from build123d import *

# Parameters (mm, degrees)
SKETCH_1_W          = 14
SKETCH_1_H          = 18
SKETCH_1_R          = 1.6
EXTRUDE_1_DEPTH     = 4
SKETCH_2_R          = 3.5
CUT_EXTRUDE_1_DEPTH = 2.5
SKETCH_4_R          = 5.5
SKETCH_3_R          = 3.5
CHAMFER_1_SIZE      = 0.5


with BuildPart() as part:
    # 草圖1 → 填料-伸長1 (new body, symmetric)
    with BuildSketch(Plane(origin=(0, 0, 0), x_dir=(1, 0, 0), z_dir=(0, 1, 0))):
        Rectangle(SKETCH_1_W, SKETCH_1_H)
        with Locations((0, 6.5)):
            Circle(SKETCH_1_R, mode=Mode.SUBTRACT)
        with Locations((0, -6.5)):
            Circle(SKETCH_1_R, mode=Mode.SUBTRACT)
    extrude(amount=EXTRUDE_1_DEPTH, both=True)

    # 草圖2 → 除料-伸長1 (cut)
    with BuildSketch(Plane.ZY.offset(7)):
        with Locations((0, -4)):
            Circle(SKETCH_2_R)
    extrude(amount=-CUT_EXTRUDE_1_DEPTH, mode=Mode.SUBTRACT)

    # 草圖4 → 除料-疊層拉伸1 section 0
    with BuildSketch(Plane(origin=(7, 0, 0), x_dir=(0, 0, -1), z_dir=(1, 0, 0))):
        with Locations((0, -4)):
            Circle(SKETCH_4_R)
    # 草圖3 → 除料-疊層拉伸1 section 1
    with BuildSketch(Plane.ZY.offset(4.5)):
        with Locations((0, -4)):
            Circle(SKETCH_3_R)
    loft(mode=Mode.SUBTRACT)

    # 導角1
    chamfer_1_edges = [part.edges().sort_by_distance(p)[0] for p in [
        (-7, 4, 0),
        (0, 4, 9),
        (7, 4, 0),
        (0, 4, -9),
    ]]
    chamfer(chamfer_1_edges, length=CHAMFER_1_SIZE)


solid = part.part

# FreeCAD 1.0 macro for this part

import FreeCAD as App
import Part
import Sketcher

V = App.Vector
Q = App.Units.Quantity


def edges_at(feature, points):
    """Names of the edges that pass closest to the given points."""
    edges = feature.Shape.Edges
    near = lambda p: min(range(len(edges)), key=lambda i: edges[i].distToShape(Part.Vertex(*p))[0])
    return sorted({f"Edge{near(p) + 1}" for p in points})

doc = App.newDocument("Part")
body = doc.addObject("PartDesign::Body", "Body")

# Sketch on XZ plane
sketch1 = body.newObject("Sketcher::SketchObject", "Sketch")
sketch1.AttachmentSupport = (doc.getObject("XZ_Plane"), [""])
sketch1.MapMode = "FlatFace"
sketch1.addGeometry([
    Part.LineSegment(V(-7, -9, 0), V(-7, 9, 0)),  # 0
    Part.LineSegment(V(-7, 9, 0), V(7, 9, 0)),  # 1
    Part.LineSegment(V(7, 9, 0), V(7, -9, 0)),  # 2
    Part.LineSegment(V(7, -9, 0), V(-7, -9, 0)),  # 3
    Part.Circle(V(0, 6.5, 0), V(0, 0, 1), 1.6),  # 4
    Part.Circle(V(0, -6.5, 0), V(0, 0, 1), 1.6),  # 5
], False)
sketch1.addConstraint([
    Sketcher.Constraint("Coincident", 0, 2, 1, 1),
    Sketcher.Constraint("Coincident", 1, 2, 2, 1),
    Sketcher.Constraint("Coincident", 2, 2, 3, 1),
    Sketcher.Constraint("Coincident", 3, 2, 0, 1),
    Sketcher.Constraint("Vertical", 0),
    Sketcher.Constraint("Horizontal", 1),
    Sketcher.Constraint("Vertical", 2),
    Sketcher.Constraint("Horizontal", 3),
    Sketcher.Constraint("Equal", 4, 5),
    Sketcher.Constraint("Symmetric", 4, 3, 5, 3, -1, 1),
    Sketcher.Constraint("Symmetric", 0, 2, 2, 2, -1, 1),
    Sketcher.Constraint("PointOnObject", 4, 3, -2),
    Sketcher.Constraint("Diameter", 4, Q("3.2 mm")),
    Sketcher.Constraint("DistanceX", 1, 1, 1, 2, Q("14 mm")),
    Sketcher.Constraint("DistanceY", 0, 1, 0, 2, Q("18 mm")),
    Sketcher.Constraint("DistanceY", 5, 3, 4, 3, Q("13 mm")),
])
pad1 = body.newObject("PartDesign::Pad", "Pad")
pad1.Profile = sketch1
pad1.Length = 8
pad1.Midplane = True

# Sketch on YZ plane
sketch2 = body.newObject("Sketcher::SketchObject", "Sketch001")
sketch2.AttachmentSupport = (doc.getObject("YZ_Plane"), [""])
sketch2.MapMode = "FlatFace"
sketch2.AttachmentOffset = App.Placement(V(0, 0, -7), App.Rotation())
sketch2.addGeometry(Part.Circle(V(-4, 0, 0), V(0, 0, 1), 3.5), False)
sketch2.addConstraint([
    Sketcher.Constraint("PointOnObject", 0, 3, -1),
    Sketcher.Constraint("Diameter", 0, Q("7 mm")),
    Sketcher.Constraint("DistanceX", 0, 3, -1, 1, Q("4 mm")),
])
pocket1 = body.newObject("PartDesign::Pocket", "Pocket")
pocket1.Profile = sketch2
pocket1.Length = 2.5
pocket1.Reversed = True

# Sketch on YZ plane
sketch3 = body.newObject("Sketcher::SketchObject", "Sketch002")
sketch3.AttachmentSupport = (doc.getObject("YZ_Plane"), [""])
sketch3.MapMode = "FlatFace"
sketch3.AttachmentOffset = App.Placement(V(0, 0, 7), App.Rotation())
sketch3.addGeometry(Part.Circle(V(-4, 0, 0), V(0, 0, 1), 6), False)
sketch3.addConstraint([
    Sketcher.Constraint("PointOnObject", 0, 3, -1),
    Sketcher.Constraint("Diameter", 0, Q("11 mm")),
    Sketcher.Constraint("DistanceX", 0, 3, -1, 1, Q("4 mm")),
])

# Sketch on YZ plane
sketch4 = body.newObject("Sketcher::SketchObject", "Sketch003")
sketch4.AttachmentSupport = (doc.getObject("YZ_Plane"), [""])
sketch4.MapMode = "FlatFace"
sketch4.AttachmentOffset = App.Placement(V(0, 0, -4.5), App.Rotation())
sketch4.addGeometry(Part.Circle(V(-4, 0, 0), V(0, 0, 1), 3.5), False)
sketch4.addConstraint([
    Sketcher.Constraint("PointOnObject", 0, 3, -1),
    Sketcher.Constraint("Diameter", 0, Q("7 mm")),
    Sketcher.Constraint("DistanceX", 0, 3, -1, 1, Q("4 mm")),
])

subtractiveloft = body.newObject("PartDesign::SubtractiveLoft", "SubtractiveLoft")
subtractiveloft.Profile = sketch3
subtractiveloft.Sections = [sketch4]
doc.recompute()

chamfer = body.newObject("PartDesign::Chamfer", "Chamfer")
chamfer.Base = (subtractiveloft, edges_at(subtractiveloft, [
    (-7, 4, 0),
    (0, 4, 9),
    (7, 4, 0),
    (0, 4, -9),
]))
chamfer.Size = 0.5

doc.recompute()
